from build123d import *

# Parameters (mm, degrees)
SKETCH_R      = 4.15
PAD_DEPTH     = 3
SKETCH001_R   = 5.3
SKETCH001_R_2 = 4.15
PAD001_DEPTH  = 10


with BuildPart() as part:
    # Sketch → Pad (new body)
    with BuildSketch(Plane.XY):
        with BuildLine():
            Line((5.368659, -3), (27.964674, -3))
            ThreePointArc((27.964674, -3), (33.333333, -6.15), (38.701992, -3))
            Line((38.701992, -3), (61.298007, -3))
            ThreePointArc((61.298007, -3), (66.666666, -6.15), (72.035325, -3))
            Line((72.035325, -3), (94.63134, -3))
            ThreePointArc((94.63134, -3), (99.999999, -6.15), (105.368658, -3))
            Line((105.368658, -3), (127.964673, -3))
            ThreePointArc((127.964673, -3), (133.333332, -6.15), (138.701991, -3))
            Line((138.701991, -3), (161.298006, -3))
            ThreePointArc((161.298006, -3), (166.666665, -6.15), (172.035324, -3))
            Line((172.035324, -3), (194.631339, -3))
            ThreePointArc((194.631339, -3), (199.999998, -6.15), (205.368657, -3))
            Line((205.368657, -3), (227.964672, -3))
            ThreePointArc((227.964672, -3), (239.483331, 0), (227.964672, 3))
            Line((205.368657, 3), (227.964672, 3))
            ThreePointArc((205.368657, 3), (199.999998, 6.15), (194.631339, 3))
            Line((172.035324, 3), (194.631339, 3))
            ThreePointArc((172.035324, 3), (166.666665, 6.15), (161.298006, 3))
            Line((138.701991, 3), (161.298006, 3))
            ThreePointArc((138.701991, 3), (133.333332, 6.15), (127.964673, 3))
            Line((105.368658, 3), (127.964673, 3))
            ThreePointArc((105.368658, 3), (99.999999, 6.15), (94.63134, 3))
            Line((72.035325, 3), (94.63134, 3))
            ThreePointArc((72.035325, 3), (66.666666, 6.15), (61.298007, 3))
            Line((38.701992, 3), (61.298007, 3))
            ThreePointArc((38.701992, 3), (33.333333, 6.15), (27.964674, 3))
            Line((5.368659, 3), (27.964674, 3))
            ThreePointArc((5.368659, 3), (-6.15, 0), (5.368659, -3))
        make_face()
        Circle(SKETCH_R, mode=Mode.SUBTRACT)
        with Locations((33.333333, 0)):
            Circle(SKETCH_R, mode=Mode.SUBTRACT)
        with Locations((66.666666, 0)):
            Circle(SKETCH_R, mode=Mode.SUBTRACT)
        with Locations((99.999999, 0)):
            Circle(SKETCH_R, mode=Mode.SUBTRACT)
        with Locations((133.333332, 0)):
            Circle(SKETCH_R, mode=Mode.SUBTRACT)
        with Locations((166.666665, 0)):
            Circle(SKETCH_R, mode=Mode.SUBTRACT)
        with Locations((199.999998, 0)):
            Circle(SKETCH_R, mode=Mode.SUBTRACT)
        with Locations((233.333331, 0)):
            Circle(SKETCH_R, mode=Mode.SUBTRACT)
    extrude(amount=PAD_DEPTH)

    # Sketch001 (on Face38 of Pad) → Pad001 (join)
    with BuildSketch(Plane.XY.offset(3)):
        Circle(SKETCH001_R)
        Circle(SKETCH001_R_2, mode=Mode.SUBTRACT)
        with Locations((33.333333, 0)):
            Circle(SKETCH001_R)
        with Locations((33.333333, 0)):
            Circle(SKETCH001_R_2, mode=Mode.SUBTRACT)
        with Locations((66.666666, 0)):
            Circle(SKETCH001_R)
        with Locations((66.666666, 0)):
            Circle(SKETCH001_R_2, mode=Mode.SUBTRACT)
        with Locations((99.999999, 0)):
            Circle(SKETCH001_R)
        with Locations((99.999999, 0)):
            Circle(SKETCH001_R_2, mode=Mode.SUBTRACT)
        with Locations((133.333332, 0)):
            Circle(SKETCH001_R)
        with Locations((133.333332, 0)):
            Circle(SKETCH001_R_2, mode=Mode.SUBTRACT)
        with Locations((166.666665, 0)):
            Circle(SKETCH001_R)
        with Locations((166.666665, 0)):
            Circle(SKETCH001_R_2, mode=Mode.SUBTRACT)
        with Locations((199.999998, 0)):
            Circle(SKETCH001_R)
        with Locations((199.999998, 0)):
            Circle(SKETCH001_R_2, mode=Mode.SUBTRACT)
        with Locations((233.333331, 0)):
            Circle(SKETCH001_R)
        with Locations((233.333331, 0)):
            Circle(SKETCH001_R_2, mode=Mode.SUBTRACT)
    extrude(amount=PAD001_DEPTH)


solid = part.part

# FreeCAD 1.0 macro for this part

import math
import FreeCAD as App
import Part
import Sketcher
Q = App.Units.Quantity

doc = App.newDocument("Part")
body = doc.addObject("PartDesign::Body", "Body")

# Sketch on XY plane
sketch1 = body.newObject("Sketcher::SketchObject", "Sketch")
sketch1.AttachmentSupport = (doc.getObject("XY_Plane"), [""])
sketch1.MapMode = "FlatFace"
sketch1.addGeometry([
    Part.LineSegment(App.Vector(5.4, -3, 0), App.Vector(28, -3, 0)),  # 0
    Part.ArcOfCircle(Part.Circle(App.Vector(33.3, 0, 0), App.Vector(0, 0, 1), 6.1), math.radians(-151), math.radians(-29)),  # 1
    Part.LineSegment(App.Vector(38.7, -3, 0), App.Vector(61.3, -3, 0)),  # 2
    Part.ArcOfCircle(Part.Circle(App.Vector(66.7, 0, 0), App.Vector(0, 0, 1), 6.1), math.radians(-151), math.radians(-29)),  # 3
    Part.LineSegment(App.Vector(72, -3, 0), App.Vector(94.6, -3, 0)),  # 4
    Part.ArcOfCircle(Part.Circle(App.Vector(100, 0, 0), App.Vector(0, 0, 1), 6.1), math.radians(-151), math.radians(-29)),  # 5
    Part.LineSegment(App.Vector(105.4, -3, 0), App.Vector(128, -3, 0)),  # 6
    Part.ArcOfCircle(Part.Circle(App.Vector(133.3, 0, 0), App.Vector(0, 0, 1), 6.1), math.radians(-151), math.radians(-29)),  # 7
    Part.LineSegment(App.Vector(138.7, -3, 0), App.Vector(161.3, -3, 0)),  # 8
    Part.ArcOfCircle(Part.Circle(App.Vector(166.7, 0, 0), App.Vector(0, 0, 1), 6.1), math.radians(-151), math.radians(-29)),  # 9
    Part.LineSegment(App.Vector(172, -3, 0), App.Vector(194.6, -3, 0)),  # 10
    Part.ArcOfCircle(Part.Circle(App.Vector(200, 0, 0), App.Vector(0, 0, 1), 6.1), math.radians(-151), math.radians(-29)),  # 11
    Part.LineSegment(App.Vector(205.4, -3, 0), App.Vector(228, -3, 0)),  # 12
    Part.ArcOfCircle(Part.Circle(App.Vector(233.3, 0, 0), App.Vector(0, 0, 1), 6.1), math.radians(-151), math.radians(151)),  # 13
    Part.LineSegment(App.Vector(228, 3, 0), App.Vector(205.4, 3, 0)),  # 14
    Part.ArcOfCircle(Part.Circle(App.Vector(200, 0, 0), App.Vector(0, 0, 1), 6.1), math.radians(29), math.radians(151)),  # 15
    Part.LineSegment(App.Vector(194.6, 3, 0), App.Vector(172, 3, 0)),  # 16
    Part.ArcOfCircle(Part.Circle(App.Vector(166.7, 0, 0), App.Vector(0, 0, 1), 6.1), math.radians(29), math.radians(151)),  # 17
    Part.LineSegment(App.Vector(161.3, 3, 0), App.Vector(138.7, 3, 0)),  # 18
    Part.ArcOfCircle(Part.Circle(App.Vector(133.3, 0, 0), App.Vector(0, 0, 1), 6.1), math.radians(29), math.radians(151)),  # 19
    Part.LineSegment(App.Vector(128, 3, 0), App.Vector(105.4, 3, 0)),  # 20
    Part.ArcOfCircle(Part.Circle(App.Vector(100, 0, 0), App.Vector(0, 0, 1), 6.1), math.radians(29), math.radians(151)),  # 21
    Part.LineSegment(App.Vector(94.6, 3, 0), App.Vector(72, 3, 0)),  # 22
    Part.ArcOfCircle(Part.Circle(App.Vector(66.7, 0, 0), App.Vector(0, 0, 1), 6.1), math.radians(29), math.radians(151)),  # 23
    Part.LineSegment(App.Vector(61.3, 3, 0), App.Vector(38.7, 3, 0)),  # 24
    Part.ArcOfCircle(Part.Circle(App.Vector(33.3, 0, 0), App.Vector(0, 0, 1), 6.1), math.radians(29), math.radians(151)),  # 25
    Part.LineSegment(App.Vector(28, 3, 0), App.Vector(5.4, 3, 0)),  # 26
    Part.ArcOfCircle(Part.Circle(App.Vector(0, 0, 0), App.Vector(0, 0, 1), 6.1), math.radians(29), math.radians(331)),  # 27
    Part.Circle(App.Vector(0, 0, 0), App.Vector(0, 0, 1), 4.2),  # 28
    Part.Circle(App.Vector(33.3, 0, 0), App.Vector(0, 0, 1), 4.2),  # 29
    Part.Circle(App.Vector(66.7, 0, 0), App.Vector(0, 0, 1), 4.2),  # 30
    Part.Circle(App.Vector(100, 0, 0), App.Vector(0, 0, 1), 4.2),  # 31
    Part.Circle(App.Vector(133.3, 0, 0), App.Vector(0, 0, 1), 4.2),  # 32
    Part.Circle(App.Vector(166.7, 0, 0), App.Vector(0, 0, 1), 4.2),  # 33
    Part.Circle(App.Vector(200, 0, 0), App.Vector(0, 0, 1), 4.2),  # 34
    Part.Circle(App.Vector(233.3, 0, 0), App.Vector(0, 0, 1), 4.2),  # 35
], False)
sketch1.addConstraint([
    Sketcher.Constraint("Coincident", 0, 2, 1, 1),
    Sketcher.Constraint("Coincident", 1, 2, 2, 1),
    Sketcher.Constraint("Coincident", 2, 2, 3, 1),
    Sketcher.Constraint("Coincident", 3, 2, 4, 1),
    Sketcher.Constraint("Coincident", 4, 2, 5, 1),
    Sketcher.Constraint("Coincident", 5, 2, 6, 1),
    Sketcher.Constraint("Coincident", 6, 2, 7, 1),
    Sketcher.Constraint("Coincident", 7, 2, 8, 1),
    Sketcher.Constraint("Coincident", 8, 2, 9, 1),
    Sketcher.Constraint("Coincident", 9, 2, 10, 1),
    Sketcher.Constraint("Coincident", 10, 2, 11, 1),
    Sketcher.Constraint("Coincident", 11, 2, 12, 1),
    Sketcher.Constraint("Coincident", 12, 2, 13, 1),
    Sketcher.Constraint("Coincident", 13, 2, 14, 1),
    Sketcher.Constraint("Coincident", 14, 2, 15, 1),
    Sketcher.Constraint("Coincident", 15, 2, 16, 1),
    Sketcher.Constraint("Coincident", 16, 2, 17, 1),
    Sketcher.Constraint("Coincident", 17, 2, 18, 1),
    Sketcher.Constraint("Coincident", 18, 2, 19, 1),
    Sketcher.Constraint("Coincident", 19, 2, 20, 1),
    Sketcher.Constraint("Coincident", 20, 2, 21, 1),
    Sketcher.Constraint("Coincident", 21, 2, 22, 1),
    Sketcher.Constraint("Coincident", 22, 2, 23, 1),
    Sketcher.Constraint("Coincident", 23, 2, 24, 1),
    Sketcher.Constraint("Coincident", 24, 2, 25, 1),
    Sketcher.Constraint("Coincident", 25, 2, 26, 1),
    Sketcher.Constraint("Coincident", 26, 2, 27, 1),
    Sketcher.Constraint("Coincident", 27, 2, 0, 1),
    Sketcher.Constraint("Horizontal", 0),
    Sketcher.Constraint("Horizontal", 2),
    Sketcher.Constraint("Horizontal", 4),
    Sketcher.Constraint("Horizontal", 6),
    Sketcher.Constraint("Horizontal", 8),
    Sketcher.Constraint("Horizontal", 10),
    Sketcher.Constraint("Horizontal", 12),
    Sketcher.Constraint("Horizontal", 14),
    Sketcher.Constraint("Horizontal", 16),
    Sketcher.Constraint("Horizontal", 18),
    Sketcher.Constraint("Horizontal", 20),
    Sketcher.Constraint("Horizontal", 22),
    Sketcher.Constraint("Horizontal", 24),
    Sketcher.Constraint("Horizontal", 26),
    Sketcher.Constraint("Coincident", 27, 3, -1, 1),
    Sketcher.Constraint("Coincident", 28, 3, -1, 1),
    Sketcher.Constraint("Coincident", 15, 3, 11, 3),
    Sketcher.Constraint("Coincident", 17, 3, 9, 3),
    Sketcher.Constraint("Coincident", 19, 3, 7, 3),
    Sketcher.Constraint("Coincident", 21, 3, 5, 3),
    Sketcher.Constraint("Coincident", 23, 3, 3, 3),
    Sketcher.Constraint("Coincident", 25, 3, 1, 3),
    Sketcher.Constraint("Coincident", 29, 3, 1, 3),
    Sketcher.Constraint("Coincident", 30, 3, 3, 3),
    Sketcher.Constraint("Coincident", 31, 3, 5, 3),
    Sketcher.Constraint("Coincident", 32, 3, 7, 3),
    Sketcher.Constraint("Coincident", 33, 3, 9, 3),
    Sketcher.Constraint("Coincident", 34, 3, 11, 3),
    Sketcher.Constraint("Coincident", 35, 3, 13, 3),
    Sketcher.Constraint("Equal", 1, 3),
    Sketcher.Constraint("Equal", 3, 5),
    Sketcher.Constraint("Equal", 5, 7),
    Sketcher.Constraint("Equal", 7, 9),
    Sketcher.Constraint("Equal", 9, 11),
    Sketcher.Constraint("Equal", 11, 13),
    Sketcher.Constraint("Equal", 13, 15),
    Sketcher.Constraint("Equal", 15, 17),
    Sketcher.Constraint("Equal", 17, 19),
    Sketcher.Constraint("Equal", 19, 21),
    Sketcher.Constraint("Equal", 21, 23),
    Sketcher.Constraint("Equal", 23, 25),
    Sketcher.Constraint("Equal", 25, 27),
    Sketcher.Constraint("Equal", 28, 29),
    Sketcher.Constraint("Equal", 29, 30),
    Sketcher.Constraint("Equal", 30, 31),
    Sketcher.Constraint("Equal", 31, 32),
    Sketcher.Constraint("Equal", 32, 33),
    Sketcher.Constraint("Equal", 33, 34),
    Sketcher.Constraint("Equal", 34, 35),
    Sketcher.Constraint("Symmetric", 12, 2, 13, 2, -1),
    Sketcher.Constraint("Symmetric", 10, 2, 15, 2, -1),
    Sketcher.Constraint("Symmetric", 8, 2, 17, 2, -1),
    Sketcher.Constraint("Symmetric", 6, 2, 19, 2, -1),
    Sketcher.Constraint("Symmetric", 4, 2, 21, 2, -1),
    Sketcher.Constraint("Symmetric", 2, 2, 23, 2, -1),
    Sketcher.Constraint("Symmetric", 0, 2, 25, 2, -1),
    Sketcher.Constraint("Horizontal", 0, 2, 1, 2),
    Sketcher.Constraint("Horizontal", 2, 2, 3, 2),
    Sketcher.Constraint("Horizontal", 4, 2, 5, 2),
    Sketcher.Constraint("Horizontal", 6, 2, 7, 2),
    Sketcher.Constraint("Horizontal", 8, 2, 9, 2),
    Sketcher.Constraint("Horizontal", 10, 2, 11, 2),
    Sketcher.Constraint("Equal", 0, 2),
    Sketcher.Constraint("Equal", 2, 4),
    Sketcher.Constraint("Equal", 4, 6),
    Sketcher.Constraint("Equal", 6, 8),
    Sketcher.Constraint("Equal", 8, 10),
    Sketcher.Constraint("Equal", 10, 12),
    Sketcher.Constraint("Diameter", 28, Q("8.3 mm")),
    Sketcher.Constraint("Radius", 1, Q("6.15 mm")),
    Sketcher.Constraint("DistanceX", -1, 1, 5, 3, Q("99.999999 mm")),
    Sketcher.Constraint("DistanceY", 0, 2, -1, 1, Q("3 mm")),
])
pad1 = body.newObject("PartDesign::Pad", "Pad")
pad1.Profile = sketch1
pad1.Length = 3

# Sketch on XY plane
sketch2 = body.newObject("Sketcher::SketchObject", "Sketch001")
sketch2.AttachmentSupport = (doc.getObject("XY_Plane"), [""])
sketch2.MapMode = "FlatFace"
sketch2.AttachmentOffset = App.Placement(App.Vector(0, 0, 3), App.Rotation())
sketch2.addGeometry([
    Part.Circle(App.Vector(0, 0, 0), App.Vector(0, 0, 1), 5.3),  # 0
    Part.Circle(App.Vector(0, 0, 0), App.Vector(0, 0, 1), 4.2),  # 1
    Part.Circle(App.Vector(33.3, 0, 0), App.Vector(0, 0, 1), 5.3),  # 2
    Part.Circle(App.Vector(33.3, 0, 0), App.Vector(0, 0, 1), 4.2),  # 3
    Part.Circle(App.Vector(66.7, 0, 0), App.Vector(0, 0, 1), 5.3),  # 4
    Part.Circle(App.Vector(66.7, 0, 0), App.Vector(0, 0, 1), 4.2),  # 5
    Part.Circle(App.Vector(100, 0, 0), App.Vector(0, 0, 1), 5.3),  # 6
    Part.Circle(App.Vector(100, 0, 0), App.Vector(0, 0, 1), 4.2),  # 7
    Part.Circle(App.Vector(133.3, 0, 0), App.Vector(0, 0, 1), 5.3),  # 8
    Part.Circle(App.Vector(133.3, 0, 0), App.Vector(0, 0, 1), 4.2),  # 9
    Part.Circle(App.Vector(166.7, 0, 0), App.Vector(0, 0, 1), 5.3),  # 10
    Part.Circle(App.Vector(166.7, 0, 0), App.Vector(0, 0, 1), 4.2),  # 11
    Part.Circle(App.Vector(200, 0, 0), App.Vector(0, 0, 1), 5.3),  # 12
    Part.Circle(App.Vector(200, 0, 0), App.Vector(0, 0, 1), 4.2),  # 13
    Part.Circle(App.Vector(233.3, 0, 0), App.Vector(0, 0, 1), 5.3),  # 14
    Part.Circle(App.Vector(233.3, 0, 0), App.Vector(0, 0, 1), 4.2),  # 15
], False)
sketch2.addConstraint([
    Sketcher.Constraint("Coincident", 0, 3, -1, 1),
    Sketcher.Constraint("Coincident", 1, 3, -1, 1),
    Sketcher.Constraint("Coincident", 3, 3, 2, 3),
    Sketcher.Constraint("Coincident", 5, 3, 4, 3),
    Sketcher.Constraint("Coincident", 7, 3, 6, 3),
    Sketcher.Constraint("Coincident", 9, 3, 8, 3),
    Sketcher.Constraint("Coincident", 11, 3, 10, 3),
    Sketcher.Constraint("Coincident", 13, 3, 12, 3),
    Sketcher.Constraint("Coincident", 15, 3, 14, 3),
    Sketcher.Constraint("Equal", 0, 2),
    Sketcher.Constraint("Equal", 1, 3),
    Sketcher.Constraint("Equal", 2, 4),
    Sketcher.Constraint("Equal", 3, 5),
    Sketcher.Constraint("Equal", 4, 6),
    Sketcher.Constraint("Equal", 5, 7),
    Sketcher.Constraint("Equal", 6, 8),
    Sketcher.Constraint("Equal", 7, 9),
    Sketcher.Constraint("Equal", 8, 10),
    Sketcher.Constraint("Equal", 9, 11),
    Sketcher.Constraint("Equal", 10, 12),
    Sketcher.Constraint("Equal", 11, 13),
    Sketcher.Constraint("Equal", 12, 14),
    Sketcher.Constraint("Equal", 13, 15),
    Sketcher.Constraint("PointOnObject", 2, 3, -1),
    Sketcher.Constraint("PointOnObject", 4, 3, -1),
    Sketcher.Constraint("PointOnObject", 6, 3, -1),
    Sketcher.Constraint("PointOnObject", 8, 3, -1),
    Sketcher.Constraint("PointOnObject", 10, 3, -1),
    Sketcher.Constraint("PointOnObject", 12, 3, -1),
    Sketcher.Constraint("PointOnObject", 14, 3, -1),
    Sketcher.Constraint("Diameter", 0, Q("10.6 mm")),
    Sketcher.Constraint("Diameter", 1, Q("8.3 mm")),
    Sketcher.Constraint("DistanceX", -1, 1, 6, 3, Q("99.999999 mm")),
    Sketcher.Constraint("DistanceX", -1, 1, 12, 3, Q("199.999998 mm")),
    Sketcher.Constraint("DistanceX", 2, 3, 8, 3, Q("99.999999 mm")),
    Sketcher.Constraint("DistanceX", 4, 3, 10, 3, Q("99.999999 mm")),
    Sketcher.Constraint("DistanceX", 8, 3, 14, 3, Q("99.999999 mm")),
    Sketcher.Constraint("DistanceX", -1, 1, 14, 3, Q("233.333331 mm")),
    Sketcher.Constraint("DistanceX", -1, 1, 4, 3, Q("66.666666 mm")),
])
pad2 = body.newObject("PartDesign::Pad", "Pad001")
pad2.Profile = sketch2
pad2.Length = 10

doc.recompute()
